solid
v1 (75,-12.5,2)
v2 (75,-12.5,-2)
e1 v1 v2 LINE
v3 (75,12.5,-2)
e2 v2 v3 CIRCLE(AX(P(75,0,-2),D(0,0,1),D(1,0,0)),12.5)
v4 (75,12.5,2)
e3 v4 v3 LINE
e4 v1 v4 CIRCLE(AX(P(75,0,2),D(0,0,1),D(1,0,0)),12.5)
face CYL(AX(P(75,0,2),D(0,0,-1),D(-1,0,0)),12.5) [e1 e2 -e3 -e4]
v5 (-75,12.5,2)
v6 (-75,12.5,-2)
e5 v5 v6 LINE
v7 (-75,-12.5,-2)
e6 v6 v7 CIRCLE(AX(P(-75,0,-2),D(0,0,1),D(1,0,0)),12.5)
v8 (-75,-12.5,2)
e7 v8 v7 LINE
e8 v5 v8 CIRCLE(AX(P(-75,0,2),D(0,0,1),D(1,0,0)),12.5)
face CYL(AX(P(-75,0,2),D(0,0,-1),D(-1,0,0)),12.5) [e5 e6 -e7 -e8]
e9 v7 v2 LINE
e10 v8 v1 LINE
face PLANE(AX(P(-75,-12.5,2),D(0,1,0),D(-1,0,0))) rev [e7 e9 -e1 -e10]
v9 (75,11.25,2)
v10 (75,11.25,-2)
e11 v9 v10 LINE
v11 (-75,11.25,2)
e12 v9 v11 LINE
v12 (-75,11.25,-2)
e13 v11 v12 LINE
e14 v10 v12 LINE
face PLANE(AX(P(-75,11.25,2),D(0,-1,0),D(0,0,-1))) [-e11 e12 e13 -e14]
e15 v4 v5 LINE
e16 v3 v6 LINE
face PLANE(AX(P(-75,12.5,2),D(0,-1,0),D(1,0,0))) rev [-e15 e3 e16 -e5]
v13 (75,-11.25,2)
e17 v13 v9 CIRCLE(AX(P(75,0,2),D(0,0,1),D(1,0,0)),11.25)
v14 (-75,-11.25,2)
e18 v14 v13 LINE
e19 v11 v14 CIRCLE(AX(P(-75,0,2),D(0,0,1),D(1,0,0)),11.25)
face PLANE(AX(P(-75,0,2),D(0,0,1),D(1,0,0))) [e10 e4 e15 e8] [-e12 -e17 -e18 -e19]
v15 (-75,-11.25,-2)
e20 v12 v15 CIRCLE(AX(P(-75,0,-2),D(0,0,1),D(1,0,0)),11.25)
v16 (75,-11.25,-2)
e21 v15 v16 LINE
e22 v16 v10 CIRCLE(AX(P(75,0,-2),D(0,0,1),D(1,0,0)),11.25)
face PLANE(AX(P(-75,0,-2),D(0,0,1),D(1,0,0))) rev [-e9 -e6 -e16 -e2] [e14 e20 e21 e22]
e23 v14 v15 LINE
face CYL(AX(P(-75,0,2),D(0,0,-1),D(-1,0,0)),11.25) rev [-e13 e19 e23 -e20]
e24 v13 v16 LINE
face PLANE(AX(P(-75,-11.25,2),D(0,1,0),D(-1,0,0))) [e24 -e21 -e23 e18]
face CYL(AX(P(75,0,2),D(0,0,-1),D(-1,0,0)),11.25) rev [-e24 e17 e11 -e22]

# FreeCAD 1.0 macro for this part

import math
import FreeCAD as App
import Part
import Sketcher
Q = App.Units.Quantity

doc = App.newDocument("Part")
body = doc.addObject("PartDesign::Body", "Body")

sketch1 = body.newObject("Sketcher::SketchObject", "Sketch")
sketch1.AttachmentSupport = (doc.getObject("XY_Plane"), [""])
sketch1.MapMode = "FlatFace"
sketch1.addGeometry([
    Part.LineSegment(App.Vector(75, 12, 0), App.Vector(-75, 12, 0)),
    Part.ArcOfCircle(Part.Circle(App.Vector(-75, 0, 0), App.Vector(0, 0, 1), 12), math.radians(90), math.radians(270)),
    Part.LineSegment(App.Vector(-75, -12, 0), App.Vector(75, -12, 0)),
    Part.ArcOfCircle(Part.Circle(App.Vector(75, 0, 0), App.Vector(0, 0, 1), 12), math.radians(-90), math.radians(90)),
    Part.LineSegment(App.Vector(-75, 11, 0), App.Vector(75, 11, 0)),
    Part.ArcOfCircle(Part.Circle(App.Vector(75, 0, 0), App.Vector(0, 0, 1), 11), math.radians(-90), math.radians(90)),
    Part.LineSegment(App.Vector(75, -11, 0), App.Vector(-75, -11, 0)),
    Part.ArcOfCircle(Part.Circle(App.Vector(-75, 0, 0), App.Vector(0, 0, 1), 11), math.radians(90), math.radians(270)),
], False)
sketch1.addConstraint([
    Sketcher.Constraint("Tangent", 0, 2, 1, 1),
    Sketcher.Constraint("Tangent", 1, 2, 2, 1),
    Sketcher.Constraint("Tangent", 2, 2, 3, 1),
    Sketcher.Constraint("Tangent", 3, 2, 0, 1),
    Sketcher.Constraint("Tangent", 4, 2, 5, 2),
    Sketcher.Constraint("Tangent", 5, 1, 6, 1),
    Sketcher.Constraint("Tangent", 6, 2, 7, 2),
    Sketcher.Constraint("Tangent", 7, 1, 4, 1),
    Sketcher.Constraint("Horizontal", 0),
    Sketcher.Constraint("Horizontal", 2),
    Sketcher.Constraint("Horizontal", 4),
    Sketcher.Constraint("Horizontal", 6),
    Sketcher.Constraint("Coincident", 5, 3, 3, 3),
    Sketcher.Constraint("Symmetric", 1, 3, 3, 3, -1, 1),
    Sketcher.Constraint("Vertical", 7, 3, 0, 2),
    Sketcher.Constraint("Radius", 1, Q("12.5 mm")),
    Sketcher.Constraint("DistanceX", 0, 2, 0, 1, Q("150 mm")),
    Sketcher.Constraint("Radius", 5, Q("11.25 mm")),
])
pad1 = body.newObject("PartDesign::Pad", "Pad")
pad1.Profile = sketch1
pad1.Length = 4
pad1.Midplane = True

doc.recompute()
